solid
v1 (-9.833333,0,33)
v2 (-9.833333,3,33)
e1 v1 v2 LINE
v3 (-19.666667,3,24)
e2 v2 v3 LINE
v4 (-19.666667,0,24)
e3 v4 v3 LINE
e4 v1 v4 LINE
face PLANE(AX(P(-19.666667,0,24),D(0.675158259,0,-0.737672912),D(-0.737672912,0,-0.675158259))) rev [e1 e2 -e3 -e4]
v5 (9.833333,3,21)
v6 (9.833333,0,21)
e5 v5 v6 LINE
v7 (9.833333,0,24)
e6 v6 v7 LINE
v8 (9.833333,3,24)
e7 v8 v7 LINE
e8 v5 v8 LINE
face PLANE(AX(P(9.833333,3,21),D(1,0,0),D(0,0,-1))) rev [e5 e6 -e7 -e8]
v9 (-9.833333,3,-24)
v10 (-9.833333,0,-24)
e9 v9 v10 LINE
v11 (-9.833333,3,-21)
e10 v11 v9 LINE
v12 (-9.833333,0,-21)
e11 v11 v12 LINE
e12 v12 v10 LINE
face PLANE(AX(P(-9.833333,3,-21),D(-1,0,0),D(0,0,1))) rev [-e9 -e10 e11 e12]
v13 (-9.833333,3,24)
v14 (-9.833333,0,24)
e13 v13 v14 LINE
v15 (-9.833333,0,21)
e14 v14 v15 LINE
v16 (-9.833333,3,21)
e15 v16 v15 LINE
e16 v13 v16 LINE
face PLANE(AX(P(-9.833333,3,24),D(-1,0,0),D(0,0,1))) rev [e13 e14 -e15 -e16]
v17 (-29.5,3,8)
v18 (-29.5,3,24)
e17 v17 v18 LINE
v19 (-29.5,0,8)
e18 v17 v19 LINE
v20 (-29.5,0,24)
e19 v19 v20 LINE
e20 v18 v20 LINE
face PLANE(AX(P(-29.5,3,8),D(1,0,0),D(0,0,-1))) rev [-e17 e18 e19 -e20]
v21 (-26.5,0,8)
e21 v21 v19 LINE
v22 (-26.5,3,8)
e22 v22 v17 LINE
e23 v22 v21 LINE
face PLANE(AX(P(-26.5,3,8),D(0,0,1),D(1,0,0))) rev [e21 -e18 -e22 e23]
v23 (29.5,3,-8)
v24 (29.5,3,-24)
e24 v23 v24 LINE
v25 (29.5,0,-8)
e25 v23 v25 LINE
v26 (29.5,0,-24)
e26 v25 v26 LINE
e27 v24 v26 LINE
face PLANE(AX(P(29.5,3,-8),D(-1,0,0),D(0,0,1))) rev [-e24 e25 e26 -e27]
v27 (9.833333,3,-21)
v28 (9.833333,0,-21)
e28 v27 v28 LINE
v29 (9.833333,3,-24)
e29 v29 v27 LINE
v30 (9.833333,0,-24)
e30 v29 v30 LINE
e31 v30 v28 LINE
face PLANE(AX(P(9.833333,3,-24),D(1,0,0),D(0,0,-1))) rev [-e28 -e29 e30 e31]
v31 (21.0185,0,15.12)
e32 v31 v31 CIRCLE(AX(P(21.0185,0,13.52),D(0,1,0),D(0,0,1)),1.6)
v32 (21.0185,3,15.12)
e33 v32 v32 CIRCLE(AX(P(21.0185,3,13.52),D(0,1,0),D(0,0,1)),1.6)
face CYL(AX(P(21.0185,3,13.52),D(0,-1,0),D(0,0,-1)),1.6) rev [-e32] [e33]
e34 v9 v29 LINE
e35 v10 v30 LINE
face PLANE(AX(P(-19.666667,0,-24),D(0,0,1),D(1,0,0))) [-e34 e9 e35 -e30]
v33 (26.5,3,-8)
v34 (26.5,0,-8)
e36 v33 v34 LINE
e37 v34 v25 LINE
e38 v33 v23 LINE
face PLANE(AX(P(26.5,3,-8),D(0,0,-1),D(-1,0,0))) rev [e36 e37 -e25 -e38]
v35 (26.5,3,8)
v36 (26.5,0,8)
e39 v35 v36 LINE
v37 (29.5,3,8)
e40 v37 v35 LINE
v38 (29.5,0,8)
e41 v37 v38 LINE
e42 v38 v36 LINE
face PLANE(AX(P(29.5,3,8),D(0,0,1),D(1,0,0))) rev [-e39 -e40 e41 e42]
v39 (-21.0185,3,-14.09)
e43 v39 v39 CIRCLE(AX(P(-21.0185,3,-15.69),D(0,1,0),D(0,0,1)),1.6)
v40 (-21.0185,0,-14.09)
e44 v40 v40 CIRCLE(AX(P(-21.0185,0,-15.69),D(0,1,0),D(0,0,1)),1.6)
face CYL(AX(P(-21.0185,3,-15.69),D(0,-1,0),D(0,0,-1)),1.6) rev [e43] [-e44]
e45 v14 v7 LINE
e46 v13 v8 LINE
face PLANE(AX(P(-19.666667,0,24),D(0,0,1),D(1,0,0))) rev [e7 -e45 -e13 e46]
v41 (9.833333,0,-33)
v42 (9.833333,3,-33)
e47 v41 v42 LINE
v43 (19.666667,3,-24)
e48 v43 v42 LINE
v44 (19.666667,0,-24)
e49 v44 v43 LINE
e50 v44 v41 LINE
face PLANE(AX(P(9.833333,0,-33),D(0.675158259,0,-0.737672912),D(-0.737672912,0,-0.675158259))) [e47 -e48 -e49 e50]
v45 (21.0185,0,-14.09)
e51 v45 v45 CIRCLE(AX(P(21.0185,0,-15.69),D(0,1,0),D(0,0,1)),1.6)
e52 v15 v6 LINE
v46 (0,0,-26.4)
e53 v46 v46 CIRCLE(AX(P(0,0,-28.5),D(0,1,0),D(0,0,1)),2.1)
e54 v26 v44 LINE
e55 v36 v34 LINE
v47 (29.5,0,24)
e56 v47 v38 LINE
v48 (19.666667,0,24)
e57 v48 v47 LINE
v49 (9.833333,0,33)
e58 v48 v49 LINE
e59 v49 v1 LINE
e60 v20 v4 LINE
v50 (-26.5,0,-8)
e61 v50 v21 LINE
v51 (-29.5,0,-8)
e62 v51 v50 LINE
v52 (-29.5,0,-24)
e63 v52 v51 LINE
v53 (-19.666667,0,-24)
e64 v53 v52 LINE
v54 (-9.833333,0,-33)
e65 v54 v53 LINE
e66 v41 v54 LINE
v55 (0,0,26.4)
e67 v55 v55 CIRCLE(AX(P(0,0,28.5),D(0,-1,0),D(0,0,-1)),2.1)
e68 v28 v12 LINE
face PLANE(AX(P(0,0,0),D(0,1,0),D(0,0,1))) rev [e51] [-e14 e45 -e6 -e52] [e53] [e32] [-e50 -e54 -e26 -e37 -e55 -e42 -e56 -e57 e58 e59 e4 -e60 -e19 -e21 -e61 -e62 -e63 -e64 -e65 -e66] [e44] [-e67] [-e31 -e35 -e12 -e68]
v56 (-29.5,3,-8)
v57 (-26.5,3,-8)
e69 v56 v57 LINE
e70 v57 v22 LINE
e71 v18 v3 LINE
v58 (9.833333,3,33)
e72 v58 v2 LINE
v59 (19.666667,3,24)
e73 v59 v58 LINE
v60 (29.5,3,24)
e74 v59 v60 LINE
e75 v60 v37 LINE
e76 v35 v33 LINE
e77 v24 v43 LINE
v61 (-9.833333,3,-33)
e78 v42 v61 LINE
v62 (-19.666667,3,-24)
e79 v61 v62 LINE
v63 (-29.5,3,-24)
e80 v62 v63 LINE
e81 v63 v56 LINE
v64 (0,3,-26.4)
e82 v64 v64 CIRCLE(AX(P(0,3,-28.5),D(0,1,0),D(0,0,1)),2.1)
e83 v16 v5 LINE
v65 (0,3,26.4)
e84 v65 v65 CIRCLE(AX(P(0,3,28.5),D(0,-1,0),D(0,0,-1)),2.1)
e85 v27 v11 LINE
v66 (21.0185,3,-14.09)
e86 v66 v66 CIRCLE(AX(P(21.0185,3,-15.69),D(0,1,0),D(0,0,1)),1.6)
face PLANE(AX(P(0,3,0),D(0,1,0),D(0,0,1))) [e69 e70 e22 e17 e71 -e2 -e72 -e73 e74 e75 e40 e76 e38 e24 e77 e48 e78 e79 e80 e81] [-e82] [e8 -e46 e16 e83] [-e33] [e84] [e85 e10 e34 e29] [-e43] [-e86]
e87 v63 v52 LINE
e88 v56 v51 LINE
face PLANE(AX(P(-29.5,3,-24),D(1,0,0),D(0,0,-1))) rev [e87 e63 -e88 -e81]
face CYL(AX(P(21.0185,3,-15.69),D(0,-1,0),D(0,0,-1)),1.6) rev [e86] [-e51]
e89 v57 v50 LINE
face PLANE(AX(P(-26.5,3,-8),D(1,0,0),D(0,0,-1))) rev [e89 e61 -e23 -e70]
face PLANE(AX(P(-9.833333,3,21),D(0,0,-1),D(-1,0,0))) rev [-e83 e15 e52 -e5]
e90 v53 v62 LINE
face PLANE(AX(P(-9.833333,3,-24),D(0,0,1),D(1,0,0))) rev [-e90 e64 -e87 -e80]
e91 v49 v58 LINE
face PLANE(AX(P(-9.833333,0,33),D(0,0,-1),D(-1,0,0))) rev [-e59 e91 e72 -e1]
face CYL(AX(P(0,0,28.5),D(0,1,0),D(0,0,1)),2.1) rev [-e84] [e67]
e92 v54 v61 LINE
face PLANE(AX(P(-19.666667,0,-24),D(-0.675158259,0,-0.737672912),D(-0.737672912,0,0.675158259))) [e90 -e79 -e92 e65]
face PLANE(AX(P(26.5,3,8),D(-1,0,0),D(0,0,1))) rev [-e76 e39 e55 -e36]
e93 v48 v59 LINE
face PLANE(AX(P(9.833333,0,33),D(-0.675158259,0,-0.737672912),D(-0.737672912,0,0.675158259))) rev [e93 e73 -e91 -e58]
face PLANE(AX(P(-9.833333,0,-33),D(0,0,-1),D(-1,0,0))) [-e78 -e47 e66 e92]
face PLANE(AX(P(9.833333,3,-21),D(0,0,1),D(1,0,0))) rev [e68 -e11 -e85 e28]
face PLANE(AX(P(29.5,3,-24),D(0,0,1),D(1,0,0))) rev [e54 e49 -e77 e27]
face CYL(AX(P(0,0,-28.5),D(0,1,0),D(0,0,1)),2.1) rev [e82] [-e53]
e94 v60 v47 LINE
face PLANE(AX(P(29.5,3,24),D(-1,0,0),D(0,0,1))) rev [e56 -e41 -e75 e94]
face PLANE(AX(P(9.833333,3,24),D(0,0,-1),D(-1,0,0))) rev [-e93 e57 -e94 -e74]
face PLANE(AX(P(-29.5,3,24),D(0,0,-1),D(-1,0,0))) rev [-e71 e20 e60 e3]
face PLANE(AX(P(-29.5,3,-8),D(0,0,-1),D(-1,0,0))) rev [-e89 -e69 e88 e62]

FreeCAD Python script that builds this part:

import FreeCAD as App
import Part
import Sketcher
from FreeCAD import Vector
Q = App.Units.Quantity


def add_polygon(sketch, points):
    """Adds a closed chain of lines whose ends are joined by coincident constraints."""
    first, n = sketch.GeometryCount, len(points)
    for a, b in zip(points, points[1:] + points[:1]):
        sketch.addGeometry(Part.LineSegment(App.Vector(*a, 0), App.Vector(*b, 0)), False)
    for i in range(n):
        sketch.addConstraint(Sketcher.Constraint("Coincident", first + i, 2, first + (i + 1) % n, 1))

doc = App.newDocument("Part")
body = doc.addObject("PartDesign::Body", "Body")

# Sketch on XZ plane
sketch1 = body.newObject("Sketcher::SketchObject", "Sketch")
sketch1.AttachmentSupport = (doc.getObject("XZ_Plane"), [""])
sketch1.MapMode = "FlatFace"
add_polygon(sketch1, [(-29.5, -24), (-29.5, -8), (-26.5, -8), (-26.5, 8), (-29.5, 8), (-29.5, 24), (-9.833333, 24), (-9.833333, 21), (9.833333, 21), (9.833333, 24), (29.5, 24), (29.5, 8), (26.5, 8), (26.5, -8), (29.5, -8), (29.5, -24), (9.833333, -24), (9.833333, -21), (-9.833333, -21), (-9.833333, -24)])  # lines 0-19
sketch1.addGeometry(Part.Circle(Vector(21.0185, 13.52, 0), Vector(0, 0, 1), 1.6), False)  # 20
sketch1.addGeometry(Part.Circle(Vector(-21.0185, -15.69, 0), Vector(0, 0, 1), 1.6), False)  # 21
sketch1.addGeometry(Part.Circle(Vector(21.0185, -15.69, 0), Vector(0, 0, 1), 1.6), False)  # 22
sketch1.addConstraint(Sketcher.Constraint("Vertical", 0))
sketch1.addConstraint(Sketcher.Constraint("Horizontal", 1))
sketch1.addConstraint(Sketcher.Constraint("Vertical", 2))
sketch1.addConstraint(Sketcher.Constraint("Horizontal", 3))
sketch1.addConstraint(Sketcher.Constraint("Vertical", 4))
sketch1.addConstraint(Sketcher.Constraint("Horizontal", 5))
sketch1.addConstraint(Sketcher.Constraint("Vertical", 6))
sketch1.addConstraint(Sketcher.Constraint("Horizontal", 7))
sketch1.addConstraint(Sketcher.Constraint("Vertical", 8))
sketch1.addConstraint(Sketcher.Constraint("Horizontal", 9))
sketch1.addConstraint(Sketcher.Constraint("Vertical", 10))
sketch1.addConstraint(Sketcher.Constraint("Horizontal", 11))
sketch1.addConstraint(Sketcher.Constraint("Vertical", 12))
sketch1.addConstraint(Sketcher.Constraint("Horizontal", 13))
sketch1.addConstraint(Sketcher.Constraint("Vertical", 14))
sketch1.addConstraint(Sketcher.Constraint("Horizontal", 15))
sketch1.addConstraint(Sketcher.Constraint("Vertical", 16))
sketch1.addConstraint(Sketcher.Constraint("Horizontal", 17))
sketch1.addConstraint(Sketcher.Constraint("Vertical", 18))
sketch1.addConstraint(Sketcher.Constraint("Horizontal", 19))
sketch1.addConstraint(Sketcher.Constraint("Equal", 20, 21))
sketch1.addConstraint(Sketcher.Constraint("Equal", 21, 22))
sketch1.addConstraint(Sketcher.Constraint("Symmetric", 0, 2, 10, 2, -1, 1))
sketch1.addConstraint(Sketcher.Constraint("Symmetric", 2, 2, 12, 2, -1, 1))
sketch1.addConstraint(Sketcher.Constraint("Symmetric", 4, 2, 14, 2, -1, 1))
sketch1.addConstraint(Sketcher.Constraint("Symmetric", 6, 2, 16, 2, -1, 1))
sketch1.addConstraint(Sketcher.Constraint("Symmetric", 8, 2, 18, 2, -1, 1))
sketch1.addConstraint(Sketcher.Constraint("Symmetric", 21, 3, 22, 3, -2))
sketch1.addConstraint(Sketcher.Constraint("Symmetric", 5, 2, 8, 2, -2))
sketch1.addConstraint(Sketcher.Constraint("Symmetric", 3, 2, 10, 2, -2))
sketch1.addConstraint(Sketcher.Constraint("Vertical", 20, 3, 22, 3))
sketch1.addConstraint(Sketcher.Constraint("Equal", 5, 7))
sketch1.addConstraint(Sketcher.Constraint("Equal", 0, 2))
sketch1.addConstraint(Sketcher.Constraint("Equal", 13, 6))
sketch1.addConstraint(Sketcher.Constraint("Diameter", 20, Q("3.2 mm")))
sketch1.addConstraint(Sketcher.Constraint("DistanceX", 1, 1, 1, 2, Q("3 mm")))
sketch1.addConstraint(Sketcher.Constraint("DistanceY", 0, 1, 0, 2, Q("16 mm")))
sketch1.addConstraint(Sketcher.Constraint("DistanceX", 0, 2, -1, 1, Q("29.5 mm")))
sketch1.addConstraint(Sketcher.Constraint("DistanceY", -1, 1, 20, 3, Q("13.52 mm")))
sketch1.addConstraint(Sketcher.Constraint("DistanceY", 21, 3, -1, 1, Q("15.69 mm")))
sketch1.addConstraint(Sketcher.Constraint("DistanceX", 21, 3, 20, 3, Q("42.037 mm")))
pad1 = body.newObject("PartDesign::Pad", "Pad")
pad1.Profile = sketch1
pad1.Length = 3
pad1.Reversed = True

# Sketch on XZ plane
sketch2 = body.newObject("Sketcher::SketchObject", "Sketch001")
sketch2.AttachmentSupport = (doc.getObject("XZ_Plane"), [""])
sketch2.MapMode = "FlatFace"
sketch2.AttachmentOffset = App.Placement(Vector(0, 0, -3), App.Rotation())
add_polygon(sketch2, [(-9.833333, -33), (-19.666667, -24), (19.666667, -24), (9.833333, -33)])  # lines 0-3
sketch2.addGeometry(Part.Circle(Vector(0, -28.5, 0), Vector(0, 0, 1), 2.1), False)  # 4
sketch2.addConstraint(Sketcher.Constraint("Horizontal", 1))
sketch2.addConstraint(Sketcher.Constraint("Horizontal", 3))
sketch2.addConstraint(Sketcher.Constraint("PointOnObject", 4, 3, -2))
sketch2.addConstraint(Sketcher.Constraint("Equal", 0, 2))
sketch2.addConstraint(Sketcher.Constraint("Diameter", 4, Q("4.2 mm")))
sketch2.addConstraint(Sketcher.Constraint("DistanceY", 0, 2, -1, 1, Q("24 mm")))
sketch2.addConstraint(Sketcher.Constraint("DistanceY", 2, 2, -1, 1, Q("33 mm")))
sketch2.addConstraint(Sketcher.Constraint("DistanceY", 4, 3, -1, 1, Q("28.5 mm")))
sketch2.addConstraint(Sketcher.Constraint("DistanceX", 0, 2, 2, 2, Q("29.5 mm")))
sketch2.addConstraint(Sketcher.Constraint("DistanceX", 1, 1, 1, 2, Q("39.333333 mm")))
sketch2.addConstraint(Sketcher.Constraint("DistanceX", 0, 2, -1, 1, Q("19.666667 mm")))
pad2 = body.newObject("PartDesign::Pad", "Pad001")
pad2.Profile = sketch2
pad2.Length = 3
doc.recompute()

mirrored = body.newObject("PartDesign::Mirrored", "Mirrored")
mirrored.Originals = [pad2]
mirrored.MirrorPlane = (doc.getObject("XY_Plane"), [""])
body.Tip = mirrored

doc.recompute()
